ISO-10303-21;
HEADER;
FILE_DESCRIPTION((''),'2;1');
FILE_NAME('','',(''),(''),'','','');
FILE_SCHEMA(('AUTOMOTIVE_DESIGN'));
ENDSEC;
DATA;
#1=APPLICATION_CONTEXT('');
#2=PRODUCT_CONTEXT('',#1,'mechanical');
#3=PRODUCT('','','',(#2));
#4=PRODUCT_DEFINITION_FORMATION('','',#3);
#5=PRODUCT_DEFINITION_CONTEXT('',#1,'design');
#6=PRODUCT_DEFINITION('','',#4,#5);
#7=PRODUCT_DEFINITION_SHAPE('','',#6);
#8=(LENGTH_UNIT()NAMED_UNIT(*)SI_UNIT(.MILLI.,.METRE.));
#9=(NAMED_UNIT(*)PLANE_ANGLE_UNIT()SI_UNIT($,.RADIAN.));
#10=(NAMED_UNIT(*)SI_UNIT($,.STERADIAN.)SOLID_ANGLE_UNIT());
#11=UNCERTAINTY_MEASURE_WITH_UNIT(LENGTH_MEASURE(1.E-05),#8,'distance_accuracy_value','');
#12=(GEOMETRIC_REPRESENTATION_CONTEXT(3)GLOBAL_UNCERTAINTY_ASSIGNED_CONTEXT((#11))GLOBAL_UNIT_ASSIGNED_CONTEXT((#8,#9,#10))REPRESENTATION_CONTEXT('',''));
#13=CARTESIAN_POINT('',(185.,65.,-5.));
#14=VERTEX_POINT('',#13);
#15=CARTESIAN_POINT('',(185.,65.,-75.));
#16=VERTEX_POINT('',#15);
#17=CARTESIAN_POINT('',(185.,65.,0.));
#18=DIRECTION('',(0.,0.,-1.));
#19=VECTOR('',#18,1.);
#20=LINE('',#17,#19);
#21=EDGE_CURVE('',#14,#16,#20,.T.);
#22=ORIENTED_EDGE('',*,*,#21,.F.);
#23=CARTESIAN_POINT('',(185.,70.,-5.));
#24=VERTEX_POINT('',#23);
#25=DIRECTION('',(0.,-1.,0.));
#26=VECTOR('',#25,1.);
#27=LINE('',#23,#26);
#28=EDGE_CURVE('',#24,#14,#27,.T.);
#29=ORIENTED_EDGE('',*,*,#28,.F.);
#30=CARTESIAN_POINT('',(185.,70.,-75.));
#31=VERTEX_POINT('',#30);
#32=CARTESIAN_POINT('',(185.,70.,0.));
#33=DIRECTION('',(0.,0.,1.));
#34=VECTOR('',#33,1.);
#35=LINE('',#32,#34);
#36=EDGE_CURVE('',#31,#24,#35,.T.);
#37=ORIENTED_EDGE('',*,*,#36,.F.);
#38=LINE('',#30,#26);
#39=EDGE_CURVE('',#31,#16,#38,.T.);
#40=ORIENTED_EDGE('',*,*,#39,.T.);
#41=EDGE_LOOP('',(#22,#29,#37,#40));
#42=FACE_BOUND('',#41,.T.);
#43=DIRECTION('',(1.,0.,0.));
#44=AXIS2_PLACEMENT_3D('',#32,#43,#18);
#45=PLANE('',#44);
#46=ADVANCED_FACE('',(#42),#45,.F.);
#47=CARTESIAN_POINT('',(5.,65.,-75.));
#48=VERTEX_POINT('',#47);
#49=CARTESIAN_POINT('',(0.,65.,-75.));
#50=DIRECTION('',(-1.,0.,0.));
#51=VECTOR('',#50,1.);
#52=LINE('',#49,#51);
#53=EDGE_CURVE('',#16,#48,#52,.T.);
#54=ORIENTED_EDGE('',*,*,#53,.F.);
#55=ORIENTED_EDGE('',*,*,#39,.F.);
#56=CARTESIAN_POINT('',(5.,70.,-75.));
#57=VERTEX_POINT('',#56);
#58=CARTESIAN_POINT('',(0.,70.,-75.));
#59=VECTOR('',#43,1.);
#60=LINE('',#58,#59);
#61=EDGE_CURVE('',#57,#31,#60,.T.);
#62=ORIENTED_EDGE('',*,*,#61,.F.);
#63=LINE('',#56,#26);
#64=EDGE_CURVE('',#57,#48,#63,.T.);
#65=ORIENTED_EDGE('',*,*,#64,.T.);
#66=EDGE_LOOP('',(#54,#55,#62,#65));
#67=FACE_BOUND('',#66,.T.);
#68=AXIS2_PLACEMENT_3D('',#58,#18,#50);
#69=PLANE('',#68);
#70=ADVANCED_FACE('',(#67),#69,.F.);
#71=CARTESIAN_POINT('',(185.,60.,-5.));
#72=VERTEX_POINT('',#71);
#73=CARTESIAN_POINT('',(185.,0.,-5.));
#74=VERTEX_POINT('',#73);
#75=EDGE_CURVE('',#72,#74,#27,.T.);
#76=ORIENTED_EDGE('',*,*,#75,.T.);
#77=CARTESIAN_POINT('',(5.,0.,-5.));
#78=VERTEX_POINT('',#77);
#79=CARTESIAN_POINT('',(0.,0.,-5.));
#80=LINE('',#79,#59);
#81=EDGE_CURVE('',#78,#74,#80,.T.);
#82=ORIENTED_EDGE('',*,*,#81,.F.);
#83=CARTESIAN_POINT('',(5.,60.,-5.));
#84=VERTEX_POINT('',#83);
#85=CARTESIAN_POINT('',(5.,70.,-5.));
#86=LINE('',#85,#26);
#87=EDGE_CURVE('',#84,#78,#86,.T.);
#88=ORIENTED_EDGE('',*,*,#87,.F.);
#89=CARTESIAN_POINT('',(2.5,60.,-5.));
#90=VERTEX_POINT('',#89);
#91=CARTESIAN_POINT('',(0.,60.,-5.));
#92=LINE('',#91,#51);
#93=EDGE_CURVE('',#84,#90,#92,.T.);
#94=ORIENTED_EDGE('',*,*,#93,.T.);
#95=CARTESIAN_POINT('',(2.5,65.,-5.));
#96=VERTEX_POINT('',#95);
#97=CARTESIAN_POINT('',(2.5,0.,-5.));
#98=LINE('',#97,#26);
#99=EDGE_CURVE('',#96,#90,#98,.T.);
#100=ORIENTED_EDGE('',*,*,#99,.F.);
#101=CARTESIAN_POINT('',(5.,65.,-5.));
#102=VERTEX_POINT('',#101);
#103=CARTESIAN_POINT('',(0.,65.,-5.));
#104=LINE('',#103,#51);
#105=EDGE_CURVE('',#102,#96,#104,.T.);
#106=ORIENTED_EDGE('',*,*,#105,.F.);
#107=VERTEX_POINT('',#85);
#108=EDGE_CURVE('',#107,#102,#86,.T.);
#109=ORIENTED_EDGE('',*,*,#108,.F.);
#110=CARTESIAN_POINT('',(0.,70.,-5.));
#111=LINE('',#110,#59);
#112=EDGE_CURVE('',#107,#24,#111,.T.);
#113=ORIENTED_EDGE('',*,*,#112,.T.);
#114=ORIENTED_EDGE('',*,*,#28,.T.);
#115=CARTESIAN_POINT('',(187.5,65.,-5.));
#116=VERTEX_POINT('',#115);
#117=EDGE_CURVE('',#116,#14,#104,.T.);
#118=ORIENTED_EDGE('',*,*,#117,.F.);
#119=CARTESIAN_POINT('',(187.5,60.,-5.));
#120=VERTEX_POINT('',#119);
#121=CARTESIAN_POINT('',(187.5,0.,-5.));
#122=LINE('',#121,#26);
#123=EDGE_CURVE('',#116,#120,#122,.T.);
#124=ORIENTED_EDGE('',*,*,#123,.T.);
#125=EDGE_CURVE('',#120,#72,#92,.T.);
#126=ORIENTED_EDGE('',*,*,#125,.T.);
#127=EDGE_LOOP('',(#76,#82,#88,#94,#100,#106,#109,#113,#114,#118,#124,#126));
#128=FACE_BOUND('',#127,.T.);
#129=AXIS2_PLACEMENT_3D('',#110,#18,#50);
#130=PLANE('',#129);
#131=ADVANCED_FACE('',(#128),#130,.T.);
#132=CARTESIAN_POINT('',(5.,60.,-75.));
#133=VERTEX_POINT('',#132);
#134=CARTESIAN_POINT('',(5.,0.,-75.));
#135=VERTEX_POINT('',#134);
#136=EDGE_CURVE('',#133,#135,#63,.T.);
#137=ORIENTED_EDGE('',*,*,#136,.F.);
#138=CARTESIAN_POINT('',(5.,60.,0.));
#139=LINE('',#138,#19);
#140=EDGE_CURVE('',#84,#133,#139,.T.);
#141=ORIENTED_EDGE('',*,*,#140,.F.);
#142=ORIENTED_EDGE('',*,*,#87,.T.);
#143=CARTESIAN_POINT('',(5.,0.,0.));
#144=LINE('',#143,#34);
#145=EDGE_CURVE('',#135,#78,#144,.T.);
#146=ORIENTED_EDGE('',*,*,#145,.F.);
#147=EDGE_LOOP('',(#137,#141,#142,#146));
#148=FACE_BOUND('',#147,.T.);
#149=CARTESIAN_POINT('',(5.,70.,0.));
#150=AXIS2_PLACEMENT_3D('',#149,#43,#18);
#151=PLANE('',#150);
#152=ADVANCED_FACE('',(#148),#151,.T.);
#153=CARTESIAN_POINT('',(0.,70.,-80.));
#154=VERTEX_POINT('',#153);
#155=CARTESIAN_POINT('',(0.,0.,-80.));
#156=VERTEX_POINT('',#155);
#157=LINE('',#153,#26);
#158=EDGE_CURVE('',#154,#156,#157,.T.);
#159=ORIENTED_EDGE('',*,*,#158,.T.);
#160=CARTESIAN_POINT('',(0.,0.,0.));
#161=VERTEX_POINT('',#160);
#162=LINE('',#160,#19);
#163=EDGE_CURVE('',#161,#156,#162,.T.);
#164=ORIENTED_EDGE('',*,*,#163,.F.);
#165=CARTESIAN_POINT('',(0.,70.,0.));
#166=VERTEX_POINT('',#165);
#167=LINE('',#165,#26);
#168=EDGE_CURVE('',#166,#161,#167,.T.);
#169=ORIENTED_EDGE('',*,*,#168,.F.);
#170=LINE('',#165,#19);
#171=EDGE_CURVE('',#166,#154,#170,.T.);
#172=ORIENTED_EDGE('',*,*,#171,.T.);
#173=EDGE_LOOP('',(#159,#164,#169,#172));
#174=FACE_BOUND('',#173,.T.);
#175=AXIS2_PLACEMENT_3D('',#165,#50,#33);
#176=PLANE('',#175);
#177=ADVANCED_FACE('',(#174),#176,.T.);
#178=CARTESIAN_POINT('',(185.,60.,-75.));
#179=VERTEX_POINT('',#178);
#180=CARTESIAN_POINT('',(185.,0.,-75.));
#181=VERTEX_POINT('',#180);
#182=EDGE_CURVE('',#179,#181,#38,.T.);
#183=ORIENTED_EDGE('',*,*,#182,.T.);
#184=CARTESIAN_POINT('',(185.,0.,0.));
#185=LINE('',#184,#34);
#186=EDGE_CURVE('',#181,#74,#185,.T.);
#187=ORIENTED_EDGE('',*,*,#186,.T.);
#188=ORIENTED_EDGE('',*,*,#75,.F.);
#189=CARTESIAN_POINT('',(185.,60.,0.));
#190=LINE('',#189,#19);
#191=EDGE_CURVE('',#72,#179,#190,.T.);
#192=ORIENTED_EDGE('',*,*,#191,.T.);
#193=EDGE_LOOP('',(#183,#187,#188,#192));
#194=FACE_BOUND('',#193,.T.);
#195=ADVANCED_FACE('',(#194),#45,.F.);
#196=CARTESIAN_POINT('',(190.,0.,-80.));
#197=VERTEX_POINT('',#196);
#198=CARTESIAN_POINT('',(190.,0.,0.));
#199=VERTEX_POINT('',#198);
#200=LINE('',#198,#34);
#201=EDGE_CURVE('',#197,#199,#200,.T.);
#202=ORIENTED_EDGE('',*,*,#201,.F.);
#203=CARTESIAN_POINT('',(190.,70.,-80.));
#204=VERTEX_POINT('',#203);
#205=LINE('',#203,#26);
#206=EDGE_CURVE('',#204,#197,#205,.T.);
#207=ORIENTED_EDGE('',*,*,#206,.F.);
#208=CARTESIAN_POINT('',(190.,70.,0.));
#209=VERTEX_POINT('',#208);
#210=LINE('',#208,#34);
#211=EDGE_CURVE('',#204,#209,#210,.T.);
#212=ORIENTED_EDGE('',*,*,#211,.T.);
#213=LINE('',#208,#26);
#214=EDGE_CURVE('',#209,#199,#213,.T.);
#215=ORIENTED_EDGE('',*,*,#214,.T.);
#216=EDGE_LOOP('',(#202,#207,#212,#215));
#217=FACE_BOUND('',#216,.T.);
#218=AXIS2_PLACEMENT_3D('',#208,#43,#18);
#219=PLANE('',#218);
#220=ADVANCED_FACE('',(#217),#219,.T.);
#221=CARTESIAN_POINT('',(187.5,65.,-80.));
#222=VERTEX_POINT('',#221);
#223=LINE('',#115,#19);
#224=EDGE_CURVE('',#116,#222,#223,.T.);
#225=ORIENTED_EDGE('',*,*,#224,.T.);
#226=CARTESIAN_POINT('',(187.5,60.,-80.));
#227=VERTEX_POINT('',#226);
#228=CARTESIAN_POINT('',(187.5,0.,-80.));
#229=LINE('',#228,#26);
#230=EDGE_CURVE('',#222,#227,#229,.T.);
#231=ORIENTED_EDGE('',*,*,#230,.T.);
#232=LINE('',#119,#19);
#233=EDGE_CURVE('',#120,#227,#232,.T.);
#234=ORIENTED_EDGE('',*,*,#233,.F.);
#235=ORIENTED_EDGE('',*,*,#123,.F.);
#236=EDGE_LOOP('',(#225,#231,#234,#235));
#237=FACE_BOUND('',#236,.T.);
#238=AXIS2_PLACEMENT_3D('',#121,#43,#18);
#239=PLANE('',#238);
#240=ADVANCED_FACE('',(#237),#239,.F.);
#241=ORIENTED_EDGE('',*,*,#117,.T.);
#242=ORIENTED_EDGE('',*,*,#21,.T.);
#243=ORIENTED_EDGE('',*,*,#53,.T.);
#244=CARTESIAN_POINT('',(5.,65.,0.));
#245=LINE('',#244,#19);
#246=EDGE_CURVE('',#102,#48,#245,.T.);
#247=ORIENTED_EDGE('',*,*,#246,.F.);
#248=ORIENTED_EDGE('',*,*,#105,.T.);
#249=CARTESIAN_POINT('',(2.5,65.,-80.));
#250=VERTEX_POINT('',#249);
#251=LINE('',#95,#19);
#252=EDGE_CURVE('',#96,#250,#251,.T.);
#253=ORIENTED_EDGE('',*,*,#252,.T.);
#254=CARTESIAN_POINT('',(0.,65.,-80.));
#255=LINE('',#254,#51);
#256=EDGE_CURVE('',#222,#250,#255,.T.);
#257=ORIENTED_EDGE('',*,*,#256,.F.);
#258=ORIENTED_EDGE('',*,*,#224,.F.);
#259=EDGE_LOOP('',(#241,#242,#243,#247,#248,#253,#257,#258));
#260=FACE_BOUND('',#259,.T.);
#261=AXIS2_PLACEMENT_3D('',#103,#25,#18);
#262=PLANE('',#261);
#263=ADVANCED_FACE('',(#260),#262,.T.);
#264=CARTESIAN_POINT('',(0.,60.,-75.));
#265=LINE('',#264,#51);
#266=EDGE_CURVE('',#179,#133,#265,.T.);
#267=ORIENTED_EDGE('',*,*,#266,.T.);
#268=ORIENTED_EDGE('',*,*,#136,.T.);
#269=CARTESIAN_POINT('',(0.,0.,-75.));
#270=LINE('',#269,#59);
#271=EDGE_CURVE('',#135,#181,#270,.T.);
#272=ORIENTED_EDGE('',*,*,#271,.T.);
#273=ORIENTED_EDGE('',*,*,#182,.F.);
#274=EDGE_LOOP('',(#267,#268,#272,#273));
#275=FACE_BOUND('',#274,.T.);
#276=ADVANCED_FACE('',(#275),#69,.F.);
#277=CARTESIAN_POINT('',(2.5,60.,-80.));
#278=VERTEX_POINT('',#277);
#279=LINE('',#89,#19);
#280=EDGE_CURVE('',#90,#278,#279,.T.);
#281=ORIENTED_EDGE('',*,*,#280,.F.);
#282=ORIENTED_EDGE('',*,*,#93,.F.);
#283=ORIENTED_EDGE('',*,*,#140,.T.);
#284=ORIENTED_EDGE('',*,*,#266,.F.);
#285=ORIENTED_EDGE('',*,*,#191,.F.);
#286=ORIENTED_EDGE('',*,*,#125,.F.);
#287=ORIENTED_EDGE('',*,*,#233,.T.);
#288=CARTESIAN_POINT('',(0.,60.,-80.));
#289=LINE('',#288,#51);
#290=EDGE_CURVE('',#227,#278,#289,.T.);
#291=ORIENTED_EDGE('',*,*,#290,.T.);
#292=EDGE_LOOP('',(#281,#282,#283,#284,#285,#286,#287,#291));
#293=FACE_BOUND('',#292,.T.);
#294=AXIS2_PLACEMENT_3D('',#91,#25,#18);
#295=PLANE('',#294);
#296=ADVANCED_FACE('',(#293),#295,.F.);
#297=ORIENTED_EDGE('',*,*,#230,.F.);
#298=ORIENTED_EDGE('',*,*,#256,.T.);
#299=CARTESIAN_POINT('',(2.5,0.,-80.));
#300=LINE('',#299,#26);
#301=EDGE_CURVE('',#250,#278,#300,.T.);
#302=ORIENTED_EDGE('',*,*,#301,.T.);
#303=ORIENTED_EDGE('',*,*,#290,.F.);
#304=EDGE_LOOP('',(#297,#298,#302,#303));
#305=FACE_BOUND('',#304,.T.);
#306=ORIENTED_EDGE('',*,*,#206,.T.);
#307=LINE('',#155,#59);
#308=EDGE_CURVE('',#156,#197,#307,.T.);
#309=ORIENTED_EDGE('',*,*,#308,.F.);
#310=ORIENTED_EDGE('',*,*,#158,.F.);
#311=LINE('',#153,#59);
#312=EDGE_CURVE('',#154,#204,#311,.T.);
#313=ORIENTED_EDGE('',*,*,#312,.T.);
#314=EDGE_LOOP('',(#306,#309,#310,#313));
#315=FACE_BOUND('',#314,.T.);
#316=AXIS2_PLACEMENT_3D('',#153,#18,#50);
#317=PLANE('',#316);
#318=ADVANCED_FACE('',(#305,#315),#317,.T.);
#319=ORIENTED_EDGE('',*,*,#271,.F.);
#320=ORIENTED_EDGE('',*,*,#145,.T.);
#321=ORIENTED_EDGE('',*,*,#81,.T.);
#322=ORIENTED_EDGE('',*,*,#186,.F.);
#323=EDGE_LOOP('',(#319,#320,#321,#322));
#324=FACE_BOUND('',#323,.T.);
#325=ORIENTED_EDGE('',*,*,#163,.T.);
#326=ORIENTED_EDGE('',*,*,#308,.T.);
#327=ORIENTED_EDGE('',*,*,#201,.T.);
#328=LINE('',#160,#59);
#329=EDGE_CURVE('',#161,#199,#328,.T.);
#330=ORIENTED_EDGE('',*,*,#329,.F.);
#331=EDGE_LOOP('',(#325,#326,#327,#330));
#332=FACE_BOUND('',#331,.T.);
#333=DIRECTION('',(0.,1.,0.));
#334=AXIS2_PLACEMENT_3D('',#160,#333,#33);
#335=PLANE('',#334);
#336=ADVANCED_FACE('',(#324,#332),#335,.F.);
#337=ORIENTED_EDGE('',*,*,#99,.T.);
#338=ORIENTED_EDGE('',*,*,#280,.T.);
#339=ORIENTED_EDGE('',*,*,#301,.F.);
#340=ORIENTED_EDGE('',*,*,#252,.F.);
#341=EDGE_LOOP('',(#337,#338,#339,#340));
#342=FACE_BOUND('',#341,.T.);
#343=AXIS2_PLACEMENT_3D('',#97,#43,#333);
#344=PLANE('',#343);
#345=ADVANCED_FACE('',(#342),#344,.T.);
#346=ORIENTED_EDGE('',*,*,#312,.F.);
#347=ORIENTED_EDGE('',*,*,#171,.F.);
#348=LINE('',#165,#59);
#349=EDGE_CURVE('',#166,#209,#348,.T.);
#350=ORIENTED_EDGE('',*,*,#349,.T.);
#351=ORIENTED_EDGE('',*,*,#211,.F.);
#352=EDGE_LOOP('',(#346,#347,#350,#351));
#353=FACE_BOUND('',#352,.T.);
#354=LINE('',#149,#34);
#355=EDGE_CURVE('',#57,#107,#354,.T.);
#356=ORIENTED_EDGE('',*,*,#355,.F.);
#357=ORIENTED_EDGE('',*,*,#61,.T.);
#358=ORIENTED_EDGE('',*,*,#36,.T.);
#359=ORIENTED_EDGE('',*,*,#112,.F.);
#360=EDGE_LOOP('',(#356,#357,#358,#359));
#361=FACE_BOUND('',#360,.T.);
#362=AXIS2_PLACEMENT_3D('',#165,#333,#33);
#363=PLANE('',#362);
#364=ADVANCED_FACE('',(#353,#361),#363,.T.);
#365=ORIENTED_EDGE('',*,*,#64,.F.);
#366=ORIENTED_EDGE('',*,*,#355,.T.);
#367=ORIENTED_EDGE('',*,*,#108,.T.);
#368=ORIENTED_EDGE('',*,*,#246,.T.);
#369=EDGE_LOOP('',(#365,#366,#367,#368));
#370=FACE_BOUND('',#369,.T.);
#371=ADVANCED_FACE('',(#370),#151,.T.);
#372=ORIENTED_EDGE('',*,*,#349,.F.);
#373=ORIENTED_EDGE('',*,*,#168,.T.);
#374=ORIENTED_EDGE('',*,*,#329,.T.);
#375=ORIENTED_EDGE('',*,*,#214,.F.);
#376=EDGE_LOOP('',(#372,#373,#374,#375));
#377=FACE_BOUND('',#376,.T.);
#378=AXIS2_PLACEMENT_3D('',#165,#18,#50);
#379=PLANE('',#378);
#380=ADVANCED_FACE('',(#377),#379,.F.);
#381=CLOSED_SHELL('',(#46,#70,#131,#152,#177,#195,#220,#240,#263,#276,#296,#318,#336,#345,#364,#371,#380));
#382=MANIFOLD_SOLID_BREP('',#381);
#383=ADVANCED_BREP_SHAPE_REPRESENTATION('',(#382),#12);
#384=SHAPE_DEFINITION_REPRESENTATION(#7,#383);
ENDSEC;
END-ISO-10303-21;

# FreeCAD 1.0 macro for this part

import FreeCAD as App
import Part
import Sketcher
from FreeCAD import Vector

doc = App.newDocument("Part")
body = doc.addObject("PartDesign::Body", "Body")

sketch1 = body.newObject("Sketcher::SketchObject", "Sketch")
sketch1.AttachmentSupport = (doc.getObject("XZ_Plane"), [""])
sketch1.MapMode = "FlatFace"
sketch1.addGeometry([
    Part.LineSegment(Vector(0, -80, 0), Vector(0, 0, 0)),
    Part.LineSegment(Vector(0, 0, 0), Vector(190, 0, 0)),
    Part.LineSegment(Vector(190, 0, 0), Vector(190, -80, 0)),
    Part.LineSegment(Vector(190, -80, 0), Vector(0, -80, 0)),
    Part.LineSegment(Vector(185, -5, 0), Vector(5, -5, 0)),
    Part.LineSegment(Vector(5, -5, 0), Vector(5, -75, 0)),
    Part.LineSegment(Vector(5, -75, 0), Vector(185, -75, 0)),
    Part.LineSegment(Vector(185, -75, 0), Vector(185, -5, 0)),
], False)
sketch1.addConstraint([
    Sketcher.Constraint("Coincident", 0, 2, 1, 1),
    Sketcher.Constraint("Coincident", 1, 2, 2, 1),
    Sketcher.Constraint("Coincident", 2, 2, 3, 1),
    Sketcher.Constraint("Coincident", 3, 2, 0, 1),
    Sketcher.Constraint("Coincident", 4, 2, 5, 1),
    Sketcher.Constraint("Coincident", 5, 2, 6, 1),
    Sketcher.Constraint("Coincident", 6, 2, 7, 1),
    Sketcher.Constraint("Coincident", 7, 2, 4, 1),
    Sketcher.Constraint("Vertical", 0),
    Sketcher.Constraint("Horizontal", 1),
    Sketcher.Constraint("Vertical", 2),
    Sketcher.Constraint("Horizontal", 3),
    Sketcher.Constraint("Horizontal", 4),
    Sketcher.Constraint("Vertical", 5),
    Sketcher.Constraint("Horizontal", 6),
    Sketcher.Constraint("Vertical", 7),
    Sketcher.Constraint("Coincident", 0, 2, -1, 1),
    Sketcher.Constraint("DistanceX", 1, 1, 1, 2, 190.0),
    Sketcher.Constraint("DistanceX", 4, 2, 4, 1, 180.0),
    Sketcher.Constraint("DistanceY", 0, 1, 0, 2, 80.0),
    Sketcher.Constraint("DistanceY", 5, 2, 5, 1, 70.0),
    Sketcher.Constraint("DistanceX", -1, 1, 4, 2, 5.0),
    Sketcher.Constraint("DistanceY", 4, 2, -1, 1, 5.0),
])
pad1 = body.newObject("PartDesign::Pad", "Pad")
pad1.Profile = sketch1
pad1.Length = 70
pad1.Reversed = True

sketch2 = body.newObject("Sketcher::SketchObject", "Sketch001")
sketch2.AttachmentSupport = (doc.getObject("XY_Plane"), [""])
sketch2.MapMode = "FlatFace"
sketch2.AttachmentOffset = App.Placement(Vector(0, 0, -80), App.Rotation())
sketch2.addGeometry([
    Part.LineSegment(Vector(188, 65, 0), Vector(188, 60, 0)),
    Part.LineSegment(Vector(188, 60, 0), Vector(2, 60, 0)),
    Part.LineSegment(Vector(2, 60, 0), Vector(2, 65, 0)),
    Part.LineSegment(Vector(2, 65, 0), Vector(188, 65, 0)),
], False)
sketch2.addConstraint([
    Sketcher.Constraint("Coincident", 0, 2, 1, 1),
    Sketcher.Constraint("Coincident", 1, 2, 2, 1),
    Sketcher.Constraint("Coincident", 2, 2, 3, 1),
    Sketcher.Constraint("Coincident", 3, 2, 0, 1),
    Sketcher.Constraint("Vertical", 0),
    Sketcher.Constraint("Horizontal", 1),
    Sketcher.Constraint("Vertical", 2),
    Sketcher.Constraint("Horizontal", 3),
    Sketcher.Constraint("DistanceX", 1, 2, 1, 1, 185.0),
    Sketcher.Constraint("DistanceY", 0, 2, 0, 1, 5.0),
    Sketcher.Constraint("DistanceY", -1, 1, 0, 2, 60.0),
    Sketcher.Constraint("DistanceX", -1, 1, 0, 2, 187.5),
])
pocket1 = body.newObject("PartDesign::Pocket", "Pocket")
pocket1.Profile = sketch2
pocket1.Length = 75
pocket1.Reversed = True

doc.recompute()
